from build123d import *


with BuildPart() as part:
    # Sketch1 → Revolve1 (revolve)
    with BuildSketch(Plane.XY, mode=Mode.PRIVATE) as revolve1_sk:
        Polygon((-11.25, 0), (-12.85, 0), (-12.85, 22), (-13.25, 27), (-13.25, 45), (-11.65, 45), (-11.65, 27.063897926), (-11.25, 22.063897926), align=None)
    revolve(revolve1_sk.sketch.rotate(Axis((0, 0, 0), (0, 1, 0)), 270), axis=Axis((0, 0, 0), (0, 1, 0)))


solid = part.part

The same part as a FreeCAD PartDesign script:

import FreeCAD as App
import Part
import Sketcher
Q = App.Units.Quantity


def add_polygon(sketch, points):
    """Adds a closed chain of lines whose ends are joined by coincident constraints."""
    first, n = sketch.GeometryCount, len(points)
    for a, b in zip(points, points[1:] + points[:1]):
        sketch.addGeometry(Part.LineSegment(App.Vector(*a, 0), App.Vector(*b, 0)), False)
    for i in range(n):
        sketch.addConstraint(Sketcher.Constraint("Coincident", first + i, 2, first + (i + 1) % n, 1))

doc = App.newDocument("Part")
params = doc.addObject("Spreadsheet::Sheet", "Params")
for row, (alias, value) in enumerate([
    ("sketch1_height", "18 mm"),
    ("sketch1_height2", "22 mm"),
    ("sketch1_width", "1.6 mm"),
    ("revolution_angle", "360 deg"),
], start=1):
    params.set(f"A{row}", alias)
    params.set(f"B{row}", "=" + value)
    params.setAlias(f"B{row}", alias)

body = doc.addObject("PartDesign::Body", "Body")

sketch1 = body.newObject("Sketcher::SketchObject", "Sketch")
sketch1.AttachmentSupport = (doc.getObject("XY_Plane"), [""])
sketch1.MapMode = "FlatFace"
add_polygon(sketch1, [(-12.8, 0), (-11.2, 0), (-11.2, 22.1), (-11.7, 27.1), (-11.7, 45), (-13.2, 45), (-13.2, 27), (-12.8, 22)])
sketch1.addConstraint([
    Sketcher.Constraint("Horizontal", 0),
    Sketcher.Constraint("Vertical", 1),
    Sketcher.Constraint("Vertical", 3),
    Sketcher.Constraint("Horizontal", 4),
    Sketcher.Constraint("Vertical", 5),
    Sketcher.Constraint("Vertical", 7),
    Sketcher.Constraint("PointOnObject", 0, 2, -1),
    Sketcher.Constraint("Parallel", 2, 6),
    Sketcher.Constraint("Equal", 0, 4),
    Sketcher.Constraint("DistanceY", 5, 2, 5, 1, Q("18 mm")),
    Sketcher.Constraint("DistanceY", 7, 2, 7, 1, Q("22 mm")),
    Sketcher.Constraint("DistanceX", 0, 1, 0, 2, Q("1.6 mm")),
    Sketcher.Constraint("DistanceY", -1, 1, 3, 2, Q("45 mm")),
    Sketcher.Constraint("DistanceX", 4, 2, 1, 2, Q("2 mm")),
    Sketcher.Constraint("DistanceX", 0, 2, -1, 1, Q("11.25 mm")),
    Sketcher.Constraint("DistanceY", 1, 1, 1, 2, Q("22.063898 mm")),
])
sketch1.setExpression("Constraints[17]", "Params.sketch1_height")
sketch1.setExpression("Constraints[18]", "Params.sketch1_height2")
sketch1.setExpression("Constraints[19]", "Params.sketch1_width")
revolution = body.newObject("PartDesign::Revolution", "Revolution")
revolution.Profile = sketch1
revolution.ReferenceAxis = (sketch1, ["V_Axis"])
revolution.setExpression("Angle", "Params.revolution_angle")

doc.recompute()
